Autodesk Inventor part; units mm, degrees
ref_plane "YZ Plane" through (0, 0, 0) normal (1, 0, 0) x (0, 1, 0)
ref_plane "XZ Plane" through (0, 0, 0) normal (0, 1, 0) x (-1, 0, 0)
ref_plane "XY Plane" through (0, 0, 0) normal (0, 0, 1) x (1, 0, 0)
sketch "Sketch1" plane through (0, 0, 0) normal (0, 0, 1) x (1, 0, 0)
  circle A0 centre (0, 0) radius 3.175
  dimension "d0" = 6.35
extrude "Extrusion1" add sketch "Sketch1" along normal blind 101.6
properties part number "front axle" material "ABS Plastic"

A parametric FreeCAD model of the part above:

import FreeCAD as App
import Part
import Sketcher
from FreeCAD import Vector
Q = App.Units.Quantity

doc = App.newDocument("Part")
body = doc.addObject("PartDesign::Body", "Body")

sketch1 = body.newObject("Sketcher::SketchObject", "Sketch")
sketch1.AttachmentSupport = (doc.getObject("XY_Plane"), [""])
sketch1.MapMode = "FlatFace"
sketch1.addGeometry(Part.Circle(Vector(0, 0, 0), Vector(0, 0, 1), 3.2), False)
sketch1.addConstraint([
    Sketcher.Constraint("Coincident", 0, 3, -1, 1),
    Sketcher.Constraint("Diameter", 0, Q("0.25 in")),
])
pad1 = body.newObject("PartDesign::Pad", "Pad")
pad1.Profile = sketch1
pad1.Length = Q("4 in")

doc.recompute()
